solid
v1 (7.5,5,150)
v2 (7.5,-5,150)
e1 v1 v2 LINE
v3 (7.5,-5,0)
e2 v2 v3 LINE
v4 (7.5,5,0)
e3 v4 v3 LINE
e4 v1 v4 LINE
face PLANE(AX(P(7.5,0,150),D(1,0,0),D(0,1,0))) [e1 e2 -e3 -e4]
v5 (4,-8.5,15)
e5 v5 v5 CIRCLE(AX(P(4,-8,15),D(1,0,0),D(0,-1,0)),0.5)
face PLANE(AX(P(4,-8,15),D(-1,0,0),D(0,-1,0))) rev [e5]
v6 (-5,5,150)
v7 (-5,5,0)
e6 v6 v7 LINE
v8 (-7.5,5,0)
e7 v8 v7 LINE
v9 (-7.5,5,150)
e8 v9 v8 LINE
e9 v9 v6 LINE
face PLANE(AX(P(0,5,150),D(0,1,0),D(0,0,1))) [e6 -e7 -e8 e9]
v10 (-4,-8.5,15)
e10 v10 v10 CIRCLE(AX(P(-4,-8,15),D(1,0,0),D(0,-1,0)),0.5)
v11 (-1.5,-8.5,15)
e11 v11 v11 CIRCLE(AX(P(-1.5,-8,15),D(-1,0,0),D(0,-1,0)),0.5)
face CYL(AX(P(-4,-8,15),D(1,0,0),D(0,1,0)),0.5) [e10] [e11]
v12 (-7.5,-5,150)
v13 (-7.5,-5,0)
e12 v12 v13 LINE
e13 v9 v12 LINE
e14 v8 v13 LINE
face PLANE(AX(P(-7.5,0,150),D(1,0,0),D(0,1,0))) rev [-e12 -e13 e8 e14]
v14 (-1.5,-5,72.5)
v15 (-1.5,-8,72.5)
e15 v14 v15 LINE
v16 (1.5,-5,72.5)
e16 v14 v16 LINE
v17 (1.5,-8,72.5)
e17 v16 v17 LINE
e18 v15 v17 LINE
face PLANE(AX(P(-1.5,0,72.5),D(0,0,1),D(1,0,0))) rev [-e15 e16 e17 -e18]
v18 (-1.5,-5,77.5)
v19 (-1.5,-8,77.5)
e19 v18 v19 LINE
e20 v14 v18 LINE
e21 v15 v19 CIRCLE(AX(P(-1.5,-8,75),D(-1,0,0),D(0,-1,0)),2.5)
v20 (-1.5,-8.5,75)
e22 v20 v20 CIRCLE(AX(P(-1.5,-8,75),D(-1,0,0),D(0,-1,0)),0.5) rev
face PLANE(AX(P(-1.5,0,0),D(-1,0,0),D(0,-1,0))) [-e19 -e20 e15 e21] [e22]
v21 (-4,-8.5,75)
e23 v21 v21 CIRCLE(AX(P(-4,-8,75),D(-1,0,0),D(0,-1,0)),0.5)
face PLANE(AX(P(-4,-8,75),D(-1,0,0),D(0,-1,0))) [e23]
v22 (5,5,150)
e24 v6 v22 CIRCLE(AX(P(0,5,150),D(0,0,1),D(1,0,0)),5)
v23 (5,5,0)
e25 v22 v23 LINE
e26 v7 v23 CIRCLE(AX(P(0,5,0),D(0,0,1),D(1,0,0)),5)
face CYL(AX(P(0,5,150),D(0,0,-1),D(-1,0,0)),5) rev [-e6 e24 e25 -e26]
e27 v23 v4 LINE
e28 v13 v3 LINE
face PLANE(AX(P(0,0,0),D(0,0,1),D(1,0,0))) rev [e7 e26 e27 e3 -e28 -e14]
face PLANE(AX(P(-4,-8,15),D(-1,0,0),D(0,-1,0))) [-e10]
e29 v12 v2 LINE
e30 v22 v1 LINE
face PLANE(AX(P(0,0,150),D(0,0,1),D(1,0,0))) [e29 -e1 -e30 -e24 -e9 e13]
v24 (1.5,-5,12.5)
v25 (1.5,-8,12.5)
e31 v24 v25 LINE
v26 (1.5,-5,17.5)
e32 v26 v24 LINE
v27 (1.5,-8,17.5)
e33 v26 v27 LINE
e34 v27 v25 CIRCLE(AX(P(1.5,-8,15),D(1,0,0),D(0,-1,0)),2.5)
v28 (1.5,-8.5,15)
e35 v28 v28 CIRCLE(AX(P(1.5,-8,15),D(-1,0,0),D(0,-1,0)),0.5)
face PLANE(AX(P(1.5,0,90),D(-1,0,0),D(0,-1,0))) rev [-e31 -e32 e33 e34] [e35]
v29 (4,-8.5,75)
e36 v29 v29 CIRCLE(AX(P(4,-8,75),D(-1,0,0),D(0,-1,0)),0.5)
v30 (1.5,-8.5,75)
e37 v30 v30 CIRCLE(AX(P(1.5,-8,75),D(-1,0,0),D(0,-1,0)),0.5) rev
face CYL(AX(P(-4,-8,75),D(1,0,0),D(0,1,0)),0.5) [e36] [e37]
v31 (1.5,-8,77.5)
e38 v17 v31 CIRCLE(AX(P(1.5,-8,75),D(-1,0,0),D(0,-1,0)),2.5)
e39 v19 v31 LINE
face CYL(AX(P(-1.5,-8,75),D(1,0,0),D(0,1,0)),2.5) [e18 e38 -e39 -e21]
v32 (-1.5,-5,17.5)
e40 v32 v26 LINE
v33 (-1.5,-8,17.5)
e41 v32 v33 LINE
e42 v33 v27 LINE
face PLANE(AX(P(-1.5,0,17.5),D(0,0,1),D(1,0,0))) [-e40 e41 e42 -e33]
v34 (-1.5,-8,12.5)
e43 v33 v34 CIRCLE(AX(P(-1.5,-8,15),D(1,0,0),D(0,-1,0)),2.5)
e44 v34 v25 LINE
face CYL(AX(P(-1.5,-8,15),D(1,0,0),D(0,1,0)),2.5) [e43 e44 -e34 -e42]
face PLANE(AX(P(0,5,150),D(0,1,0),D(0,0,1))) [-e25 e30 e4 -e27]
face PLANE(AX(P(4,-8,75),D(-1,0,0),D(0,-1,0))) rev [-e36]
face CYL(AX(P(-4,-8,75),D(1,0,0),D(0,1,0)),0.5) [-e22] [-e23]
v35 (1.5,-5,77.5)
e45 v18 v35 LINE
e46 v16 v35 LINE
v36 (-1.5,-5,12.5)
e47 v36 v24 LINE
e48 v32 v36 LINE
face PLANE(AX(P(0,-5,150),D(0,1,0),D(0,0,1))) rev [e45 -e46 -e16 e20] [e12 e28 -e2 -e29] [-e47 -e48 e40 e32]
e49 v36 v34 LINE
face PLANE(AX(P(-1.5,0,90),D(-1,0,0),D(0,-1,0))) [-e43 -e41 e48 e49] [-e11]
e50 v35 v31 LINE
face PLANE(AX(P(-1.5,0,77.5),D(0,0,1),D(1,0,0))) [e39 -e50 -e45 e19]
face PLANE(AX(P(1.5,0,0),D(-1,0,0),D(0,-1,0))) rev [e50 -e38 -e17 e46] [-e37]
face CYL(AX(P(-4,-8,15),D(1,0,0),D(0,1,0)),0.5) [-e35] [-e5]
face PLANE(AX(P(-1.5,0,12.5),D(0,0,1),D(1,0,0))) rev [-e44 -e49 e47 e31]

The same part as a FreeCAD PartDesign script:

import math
import FreeCAD as App
import Part
import Sketcher
from FreeCAD import Vector

doc = App.newDocument("Part")
body = doc.addObject("PartDesign::Body", "Body")

# Sketch on XY plane
sketch1 = body.newObject("Sketcher::SketchObject", "Sketch")
sketch1.AttachmentSupport = (doc.getObject("XY_Plane"), [""])
sketch1.MapMode = "FlatFace"
sketch1.addGeometry(Part.LineSegment(Vector(7.5, 5, 0), Vector(5, 5, 0)), False)
sketch1.addGeometry(Part.ArcOfCircle(Part.Circle(Vector(0, 5, 0), Vector(0, 0, 1), 5), math.radians(180), math.radians(360)), False)
sketch1.addGeometry(Part.LineSegment(Vector(-5, 5, 0), Vector(-7.5, 5, 0)), False)
sketch1.addGeometry(Part.LineSegment(Vector(-7.5, 5, 0), Vector(-7.5, -5, 0)), False)
sketch1.addGeometry(Part.LineSegment(Vector(-7.5, -5, 0), Vector(7.5, -5, 0)), False)
sketch1.addGeometry(Part.LineSegment(Vector(7.5, -5, 0), Vector(7.5, 5, 0)), False)
sketch1.addConstraint(Sketcher.Constraint("Coincident", 0, 2, 1, 2))
sketch1.addConstraint(Sketcher.Constraint("Coincident", 1, 1, 2, 1))
sketch1.addConstraint(Sketcher.Constraint("Coincident", 2, 2, 3, 1))
sketch1.addConstraint(Sketcher.Constraint("Coincident", 3, 2, 4, 1))
sketch1.addConstraint(Sketcher.Constraint("Coincident", 4, 2, 5, 1))
sketch1.addConstraint(Sketcher.Constraint("Coincident", 5, 2, 0, 1))
sketch1.addConstraint(Sketcher.Constraint("Horizontal", 0))
sketch1.addConstraint(Sketcher.Constraint("Horizontal", 2))
sketch1.addConstraint(Sketcher.Constraint("Vertical", 3))
sketch1.addConstraint(Sketcher.Constraint("Horizontal", 4))
sketch1.addConstraint(Sketcher.Constraint("Vertical", 5))
sketch1.addConstraint(Sketcher.Constraint("Symmetric", 2, 2, 4, 2, -1, 1))
sketch1.addConstraint(Sketcher.Constraint("Symmetric", 0, 2, 1, 1, -2))
sketch1.addConstraint(Sketcher.Constraint("Horizontal", 1, 3, 0, 2))
sketch1.addConstraint(Sketcher.Constraint("Radius", 1, 5.0))
sketch1.addConstraint(Sketcher.Constraint("DistanceX", 4, 1, 4, 2, 15.0))
sketch1.addConstraint(Sketcher.Constraint("DistanceY", 3, 2, 3, 1, 10.0))
pad1 = body.newObject("PartDesign::Pad", "Pad")
pad1.Profile = sketch1
pad1.Length = 150

# Sketch on YZ plane
sketch2 = body.newObject("Sketcher::SketchObject", "Sketch001")
sketch2.AttachmentSupport = (doc.getObject("YZ_Plane"), [""])
sketch2.MapMode = "FlatFace"
sketch2.addGeometry(Part.ArcOfCircle(Part.Circle(Vector(-8, 75, 0), Vector(0, 0, 1), 2.5), math.radians(90), math.radians(270)), False)
sketch2.addGeometry(Part.LineSegment(Vector(-8, 77.5, 0), Vector(-5, 77.5, 0)), False)
sketch2.addGeometry(Part.LineSegment(Vector(-5, 77.5, 0), Vector(-5, 72.5, 0)), False)
sketch2.addGeometry(Part.LineSegment(Vector(-5, 72.5, 0), Vector(-8, 72.5, 0)), False)
sketch2.addConstraint(Sketcher.Constraint("Tangent", 0, 1, 1, 1))
sketch2.addConstraint(Sketcher.Constraint("Coincident", 1, 2, 2, 1))
sketch2.addConstraint(Sketcher.Constraint("Coincident", 2, 2, 3, 1))
sketch2.addConstraint(Sketcher.Constraint("Tangent", 3, 2, 0, 2))
sketch2.addConstraint(Sketcher.Constraint("Horizontal", 1))
sketch2.addConstraint(Sketcher.Constraint("Vertical", 2))
sketch2.addConstraint(Sketcher.Constraint("Horizontal", 3))
sketch2.addConstraint(Sketcher.Constraint("Radius", 0, 2.5))
sketch2.addConstraint(Sketcher.Constraint("DistanceX", 1, 1, 1, 2, 3.0))
sketch2.addConstraint(Sketcher.Constraint("DistanceX", 0, 3, -1, 1, 8.0))
sketch2.addConstraint(Sketcher.Constraint("DistanceY", -1, 1, 0, 3, 75.0))
pad2 = body.newObject("PartDesign::Pad", "Pad001")
pad2.Profile = sketch2
pad2.Length = 3
pad2.Midplane = True

# Sketch on YZ plane
sketch3 = body.newObject("Sketcher::SketchObject", "Sketch002")
sketch3.AttachmentSupport = (doc.getObject("YZ_Plane"), [""])
sketch3.MapMode = "FlatFace"
sketch3.addGeometry(Part.Circle(Vector(-8, 75, 0), Vector(0, 0, 1), 0.5), False)
sketch3.addConstraint(Sketcher.Constraint("Diameter", 0, 1.0))
sketch3.addConstraint(Sketcher.Constraint("DistanceX", 0, 3, -1, 1, 8.0))
sketch3.addConstraint(Sketcher.Constraint("DistanceY", -1, 1, 0, 3, 75.0))
pad3 = body.newObject("PartDesign::Pad", "Pad002")
pad3.Profile = sketch3
pad3.Length = 8
pad3.Midplane = True
doc.recompute()

datumplane = body.newObject("PartDesign::Plane", "DatumPlane")
datumplane.AttachmentSupport = (doc.getObject("XY_Plane"), [""])
datumplane.MapMode = "FlatFace"
datumplane.AttachmentOffset = App.Placement(Vector(0, 0, 45), App.Rotation())
mirrored = body.newObject("PartDesign::Mirrored", "Mirrored")
mirrored.Originals = [pad2]
mirrored.MirrorPlane = (datumplane, [""])
body.Tip = mirrored
doc.recompute()

datumplane2 = body.newObject("PartDesign::Plane", "DatumPlane001")
datumplane2.AttachmentSupport = (doc.getObject("XY_Plane"), [""])
datumplane2.MapMode = "FlatFace"
datumplane2.AttachmentOffset = App.Placement(Vector(0, 0, 45), App.Rotation())
mirrored2 = body.newObject("PartDesign::Mirrored", "Mirrored001")
mirrored2.Originals = [pad3]
mirrored2.MirrorPlane = (datumplane2, [""])
body.Tip = mirrored2

doc.recompute()
